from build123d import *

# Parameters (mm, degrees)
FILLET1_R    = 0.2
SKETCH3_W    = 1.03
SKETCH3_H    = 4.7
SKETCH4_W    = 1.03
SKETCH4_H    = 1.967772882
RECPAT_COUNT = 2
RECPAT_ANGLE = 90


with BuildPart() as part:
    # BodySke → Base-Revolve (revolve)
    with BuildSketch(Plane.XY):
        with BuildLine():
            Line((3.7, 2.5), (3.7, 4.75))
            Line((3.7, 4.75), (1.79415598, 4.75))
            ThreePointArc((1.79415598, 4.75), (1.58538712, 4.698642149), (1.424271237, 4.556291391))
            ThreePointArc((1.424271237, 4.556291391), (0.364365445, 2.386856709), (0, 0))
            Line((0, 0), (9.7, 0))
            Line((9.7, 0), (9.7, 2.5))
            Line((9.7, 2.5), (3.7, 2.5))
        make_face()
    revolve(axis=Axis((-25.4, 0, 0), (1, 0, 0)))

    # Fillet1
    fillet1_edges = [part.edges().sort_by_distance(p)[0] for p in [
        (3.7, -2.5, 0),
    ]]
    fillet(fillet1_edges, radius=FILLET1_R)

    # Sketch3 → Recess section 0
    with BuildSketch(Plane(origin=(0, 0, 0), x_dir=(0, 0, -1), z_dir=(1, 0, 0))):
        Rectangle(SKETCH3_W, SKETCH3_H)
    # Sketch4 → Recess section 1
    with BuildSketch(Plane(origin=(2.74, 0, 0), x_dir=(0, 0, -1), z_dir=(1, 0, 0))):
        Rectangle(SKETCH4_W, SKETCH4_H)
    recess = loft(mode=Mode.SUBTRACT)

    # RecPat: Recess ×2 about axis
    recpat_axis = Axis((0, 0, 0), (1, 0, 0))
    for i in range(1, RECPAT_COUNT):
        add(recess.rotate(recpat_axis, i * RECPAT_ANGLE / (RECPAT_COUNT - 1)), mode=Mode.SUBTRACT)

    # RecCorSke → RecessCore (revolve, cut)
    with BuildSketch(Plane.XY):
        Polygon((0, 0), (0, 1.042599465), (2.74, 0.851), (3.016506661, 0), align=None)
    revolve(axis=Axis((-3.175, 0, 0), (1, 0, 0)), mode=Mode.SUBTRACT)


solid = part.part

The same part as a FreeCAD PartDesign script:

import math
import FreeCAD as App
import Part
import Sketcher
from FreeCAD import Vector
Q = App.Units.Quantity


def edges_at(feature, points):
    """Names of the edges that pass closest to the given points."""
    edges = feature.Shape.Edges
    near = lambda p: min(range(len(edges)), key=lambda i: edges[i].distToShape(Part.Vertex(*p))[0])
    return sorted({f"Edge{near(p) + 1}" for p in points})

doc = App.newDocument("Part")
body = doc.addObject("PartDesign::Body", "Body")

sketch1 = body.newObject("Sketcher::SketchObject", "Sketch")
sketch1.AttachmentSupport = (doc.getObject("XY_Plane"), [""])
sketch1.MapMode = "FlatFace"
sketch1.addGeometry([
    Part.LineSegment(Vector(3.7, 2.5, 0), Vector(3.7, 4.75, 0)),
    Part.LineSegment(Vector(3.7, 4.75, 0), Vector(1.79, 4.75, 0)),
    Part.ArcOfCircle(Part.Circle(Vector(1.79, 4.3, 0), Vector(0, 0, 1), 0.45), math.radians(90), math.radians(145)),
    Part.ArcOfCircle(Part.Circle(Vector(8, 0, 0), Vector(0, 0, 1), 8), math.radians(145), math.radians(180)),
    Part.LineSegment(Vector(0, 0, 0), Vector(9.7, 0, 0)),
    Part.LineSegment(Vector(9.7, 0, 0), Vector(9.7, 2.5, 0)),
    Part.LineSegment(Vector(9.7, 2.5, 0), Vector(3.7, 2.5, 0)),
], False)
sketch1.addConstraint([
    Sketcher.Constraint("Coincident", 0, 2, 1, 1),
    Sketcher.Constraint("Tangent", 1, 2, 2, 1),
    Sketcher.Constraint("Tangent", 2, 2, 3, 1),
    Sketcher.Constraint("Coincident", 3, 2, 4, 1),
    Sketcher.Constraint("Coincident", 4, 2, 5, 1),
    Sketcher.Constraint("Coincident", 5, 2, 6, 1),
    Sketcher.Constraint("Coincident", 6, 2, 0, 1),
    Sketcher.Constraint("Vertical", 0),
    Sketcher.Constraint("Horizontal", 1),
    Sketcher.Constraint("Horizontal", 4),
    Sketcher.Constraint("Vertical", 5),
    Sketcher.Constraint("Horizontal", 6),
    Sketcher.Constraint("Coincident", 3, 2, -1, 1),
    Sketcher.Constraint("PointOnObject", 3, 3, -1),
    Sketcher.Constraint("Radius", 3, 8.0),
    Sketcher.Constraint("DistanceX", 6, 2, 6, 1, 6.0),
    Sketcher.Constraint("Radius", 2, 0.45),
    Sketcher.Constraint("DistanceX", 4, 1, 4, 2, 9.7),
    Sketcher.Constraint("DistanceY", 5, 1, 5, 2, 2.5),
    Sketcher.Constraint("DistanceY", 0, 1, 0, 2, 2.25),
])
revolution = body.newObject("PartDesign::Revolution", "Revolution")
revolution.Profile = sketch1
revolution.ReferenceAxis = (sketch1, ["H_Axis"])
revolution.Angle = 360
doc.recompute()

fillet = body.newObject("PartDesign::Fillet", "Fillet")
fillet.Base = (revolution, edges_at(revolution, [(3.7, -2.5, 0)]))
fillet.Radius = 0.2

sketch2 = body.newObject("Sketcher::SketchObject", "Sketch001")
sketch2.AttachmentSupport = (doc.getObject("YZ_Plane"), [""])
sketch2.MapMode = "FlatFace"
sketch2.addGeometry([
    Part.LineSegment(Vector(2.4, 0.5, 0), Vector(-2.4, 0.5, 0)),
    Part.LineSegment(Vector(-2.4, 0.5, 0), Vector(-2.4, -0.5, 0)),
    Part.LineSegment(Vector(-2.4, -0.5, 0), Vector(2.4, -0.5, 0)),
    Part.LineSegment(Vector(2.4, -0.5, 0), Vector(2.4, 0.5, 0)),
], False)
sketch2.addConstraint([
    Sketcher.Constraint("Coincident", 0, 2, 1, 1),
    Sketcher.Constraint("Coincident", 1, 2, 2, 1),
    Sketcher.Constraint("Coincident", 2, 2, 3, 1),
    Sketcher.Constraint("Coincident", 3, 2, 0, 1),
    Sketcher.Constraint("Horizontal", 0),
    Sketcher.Constraint("Vertical", 1),
    Sketcher.Constraint("Horizontal", 2),
    Sketcher.Constraint("Vertical", 3),
    Sketcher.Constraint("Symmetric", 0, 2, 2, 2, -1, 1),
    Sketcher.Constraint("DistanceX", 0, 2, 0, 1, 4.7),
    Sketcher.Constraint("DistanceY", 1, 2, 1, 1, 1.03),
])

sketch3 = body.newObject("Sketcher::SketchObject", "Sketch002")
sketch3.AttachmentSupport = (doc.getObject("YZ_Plane"), [""])
sketch3.MapMode = "FlatFace"
sketch3.AttachmentOffset = App.Placement(Vector(0, 0, 2.74), App.Rotation())
sketch3.addGeometry([
    Part.LineSegment(Vector(1, 0.5, 0), Vector(-1, 0.5, 0)),
    Part.LineSegment(Vector(-1, 0.5, 0), Vector(-1, -0.5, 0)),
    Part.LineSegment(Vector(-1, -0.5, 0), Vector(1, -0.5, 0)),
    Part.LineSegment(Vector(1, -0.5, 0), Vector(1, 0.5, 0)),
], False)
sketch3.addConstraint([
    Sketcher.Constraint("Coincident", 0, 2, 1, 1),
    Sketcher.Constraint("Coincident", 1, 2, 2, 1),
    Sketcher.Constraint("Coincident", 2, 2, 3, 1),
    Sketcher.Constraint("Coincident", 3, 2, 0, 1),
    Sketcher.Constraint("Horizontal", 0),
    Sketcher.Constraint("Vertical", 1),
    Sketcher.Constraint("Horizontal", 2),
    Sketcher.Constraint("Vertical", 3),
    Sketcher.Constraint("Symmetric", 0, 2, 2, 2, -1, 1),
    Sketcher.Constraint("DistanceY", 1, 2, 1, 1, 1.03),
    Sketcher.Constraint("DistanceX", 0, 2, 0, 1, 1.967773),
])

subtractiveloft = body.newObject("PartDesign::SubtractiveLoft", "SubtractiveLoft")
subtractiveloft.Profile = sketch2
subtractiveloft.Sections = [sketch3]
doc.recompute()

polarpattern = body.newObject("PartDesign::PolarPattern", "PolarPattern")
polarpattern.Originals = [subtractiveloft]
polarpattern.Axis = (doc.getObject("X_Axis"), [""])
polarpattern.Angle = 90
polarpattern.Occurrences = 2
body.Tip = polarpattern

sketch4 = body.newObject("Sketcher::SketchObject", "Sketch003")
sketch4.AttachmentSupport = (doc.getObject("XY_Plane"), [""])
sketch4.MapMode = "FlatFace"
sketch4.addGeometry([
    Part.LineSegment(Vector(0, 1, 0), Vector(0, 0, 0)),
    Part.LineSegment(Vector(0, 0, 0), Vector(3, 0, 0)),
    Part.LineSegment(Vector(3, 0, 0), Vector(2.7, 0.9, 0)),
    Part.LineSegment(Vector(2.7, 0.9, 0), Vector(0, 1, 0)),
], False)
sketch4.addConstraint([
    Sketcher.Constraint("Coincident", 0, 2, 1, 1),
    Sketcher.Constraint("Coincident", 1, 2, 2, 1),
    Sketcher.Constraint("Coincident", 2, 2, 3, 1),
    Sketcher.Constraint("Coincident", 3, 2, 0, 1),
    Sketcher.Constraint("Vertical", 0),
    Sketcher.Constraint("Horizontal", 1),
    Sketcher.Constraint("Coincident", 0, 2, -1, 1),
    Sketcher.Constraint("Angle", 2, Q("108 deg")),
    Sketcher.Constraint("Angle", 3, Q("176 deg")),
    Sketcher.Constraint("DistanceX", -1, 1, 2, 2, 2.74),
    Sketcher.Constraint("DistanceY", 0, 2, 0, 1, 1.042599),
])
groove = body.newObject("PartDesign::Groove", "Groove")
groove.Profile = sketch4
groove.ReferenceAxis = (sketch4, ["H_Axis"])
groove.Angle = 360

doc.recompute()
